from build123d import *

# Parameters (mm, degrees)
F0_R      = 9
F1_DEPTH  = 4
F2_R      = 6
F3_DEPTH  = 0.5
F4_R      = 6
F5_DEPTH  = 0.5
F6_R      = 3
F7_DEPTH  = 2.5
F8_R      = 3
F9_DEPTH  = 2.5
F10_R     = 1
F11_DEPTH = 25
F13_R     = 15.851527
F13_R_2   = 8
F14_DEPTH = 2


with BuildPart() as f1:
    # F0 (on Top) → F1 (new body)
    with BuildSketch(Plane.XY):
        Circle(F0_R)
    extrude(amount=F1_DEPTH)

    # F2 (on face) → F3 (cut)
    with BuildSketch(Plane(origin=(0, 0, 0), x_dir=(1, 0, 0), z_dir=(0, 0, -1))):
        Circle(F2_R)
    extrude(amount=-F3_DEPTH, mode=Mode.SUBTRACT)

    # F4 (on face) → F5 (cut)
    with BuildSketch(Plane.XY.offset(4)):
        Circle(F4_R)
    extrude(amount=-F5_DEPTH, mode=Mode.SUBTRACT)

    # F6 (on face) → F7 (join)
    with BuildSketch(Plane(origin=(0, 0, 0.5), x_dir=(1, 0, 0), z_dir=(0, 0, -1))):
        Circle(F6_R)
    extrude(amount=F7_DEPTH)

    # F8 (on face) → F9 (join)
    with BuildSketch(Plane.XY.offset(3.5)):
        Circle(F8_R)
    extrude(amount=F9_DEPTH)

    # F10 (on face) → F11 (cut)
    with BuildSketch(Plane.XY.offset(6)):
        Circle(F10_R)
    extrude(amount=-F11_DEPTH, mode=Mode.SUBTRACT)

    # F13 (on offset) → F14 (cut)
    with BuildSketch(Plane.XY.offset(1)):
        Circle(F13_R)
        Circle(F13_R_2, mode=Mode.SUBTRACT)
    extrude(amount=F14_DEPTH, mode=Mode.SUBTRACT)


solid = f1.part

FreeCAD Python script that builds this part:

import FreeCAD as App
import Part
import Sketcher
Q = App.Units.Quantity

doc = App.newDocument("Part")
body = doc.addObject("PartDesign::Body", "Body")

# Sketch on XY plane
sketch1 = doc.addObject("Sketcher::SketchObject", "Sketch")
body.addObject(sketch1)
sketch1.AttachmentSupport = (doc.XY_Plane, [""])
sketch1.MapMode = "FlatFace"
sketch1.addGeometry(Part.Circle(App.Vector(0, 0, 0), App.Vector(0, 0, 1), 9), False)
sketch1.addConstraint(Sketcher.Constraint("Coincident", 0, 3, -1, 1))
sketch1.addConstraint(Sketcher.Constraint("Diameter", 0, Q("18 mm")))
pad1 = doc.addObject("PartDesign::Pad", "Pad")
body.addObject(pad1)
pad1.Profile = sketch1
pad1.Length = 4

# Sketch on XY plane
sketch2 = doc.addObject("Sketcher::SketchObject", "Sketch001")
body.addObject(sketch2)
sketch2.AttachmentSupport = (doc.XY_Plane, [""])
sketch2.MapMode = "FlatFace"
sketch2.addGeometry(Part.Circle(App.Vector(0, 0, 0), App.Vector(0, 0, 1), 6), False)
sketch2.addConstraint(Sketcher.Constraint("Coincident", 0, 3, -1, 1))
sketch2.addConstraint(Sketcher.Constraint("Diameter", 0, Q("12 mm")))
pocket1 = doc.addObject("PartDesign::Pocket", "Pocket")
body.addObject(pocket1)
pocket1.Profile = sketch2
pocket1.Length = 0.5
pocket1.Reversed = True

# Sketch on XY plane
sketch3 = doc.addObject("Sketcher::SketchObject", "Sketch002")
body.addObject(sketch3)
sketch3.AttachmentSupport = (doc.XY_Plane, [""])
sketch3.MapMode = "FlatFace"
sketch3.AttachmentOffset = App.Placement(App.Vector(0, 0, 4), App.Rotation())
sketch3.addGeometry(Part.Circle(App.Vector(0, 0, 0), App.Vector(0, 0, 1), 6), False)
sketch3.addConstraint(Sketcher.Constraint("Coincident", 0, 3, -1, 1))
sketch3.addConstraint(Sketcher.Constraint("Diameter", 0, Q("12 mm")))
pocket2 = doc.addObject("PartDesign::Pocket", "Pocket001")
body.addObject(pocket2)
pocket2.Profile = sketch3
pocket2.Length = 0.5

# Sketch on XY plane
sketch4 = doc.addObject("Sketcher::SketchObject", "Sketch003")
body.addObject(sketch4)
sketch4.AttachmentSupport = (doc.XY_Plane, [""])
sketch4.MapMode = "FlatFace"
sketch4.AttachmentOffset = App.Placement(App.Vector(0, 0, 0.5), App.Rotation())
sketch4.addGeometry(Part.Circle(App.Vector(0, 0, 0), App.Vector(0, 0, 1), 3), False)
sketch4.addConstraint(Sketcher.Constraint("Coincident", 0, 3, -1, 1))
sketch4.addConstraint(Sketcher.Constraint("Diameter", 0, Q("6 mm")))
pad2 = doc.addObject("PartDesign::Pad", "Pad001")
body.addObject(pad2)
pad2.Profile = sketch4
pad2.Length = 2.5
pad2.Reversed = True

# Sketch on XY plane
sketch5 = doc.addObject("Sketcher::SketchObject", "Sketch004")
body.addObject(sketch5)
sketch5.AttachmentSupport = (doc.XY_Plane, [""])
sketch5.MapMode = "FlatFace"
sketch5.AttachmentOffset = App.Placement(App.Vector(0, 0, 3.5), App.Rotation())
sketch5.addGeometry(Part.Circle(App.Vector(0, 0, 0), App.Vector(0, 0, 1), 3), False)
sketch5.addConstraint(Sketcher.Constraint("Coincident", 0, 3, -1, 1))
sketch5.addConstraint(Sketcher.Constraint("Diameter", 0, Q("6 mm")))
pad3 = doc.addObject("PartDesign::Pad", "Pad002")
body.addObject(pad3)
pad3.Profile = sketch5
pad3.Length = 2.5

# Sketch on XY plane
sketch6 = doc.addObject("Sketcher::SketchObject", "Sketch005")
body.addObject(sketch6)
sketch6.AttachmentSupport = (doc.XY_Plane, [""])
sketch6.MapMode = "FlatFace"
sketch6.AttachmentOffset = App.Placement(App.Vector(0, 0, 6), App.Rotation())
sketch6.addGeometry(Part.Circle(App.Vector(0, 0, 0), App.Vector(0, 0, 1), 1), False)
sketch6.addConstraint(Sketcher.Constraint("Coincident", 0, 3, -1, 1))
sketch6.addConstraint(Sketcher.Constraint("Diameter", 0, Q("2 mm")))
pocket3 = doc.addObject("PartDesign::Pocket", "Pocket002")
body.addObject(pocket3)
pocket3.Profile = sketch6
pocket3.Length = 25

# Sketch on XY plane
sketch7 = doc.addObject("Sketcher::SketchObject", "Sketch006")
body.addObject(sketch7)
sketch7.AttachmentSupport = (doc.XY_Plane, [""])
sketch7.MapMode = "FlatFace"
sketch7.AttachmentOffset = App.Placement(App.Vector(0, 0, 1), App.Rotation())
sketch7.addGeometry(Part.Circle(App.Vector(0, 0, 0), App.Vector(0, 0, 1), 15.851527), False)
sketch7.addGeometry(Part.Circle(App.Vector(0, 0, 0), App.Vector(0, 0, 1), 8), False)
sketch7.addConstraint(Sketcher.Constraint("Coincident", 0, 3, -1, 1))
sketch7.addConstraint(Sketcher.Constraint("Coincident", 1, 3, -1, 1))
sketch7.addConstraint(Sketcher.Constraint("Diameter", 1, Q("16 mm")))
sketch7.addConstraint(Sketcher.Constraint("Diameter", 0, Q("31.703054 mm")))
pocket4 = doc.addObject("PartDesign::Pocket", "Pocket003")
body.addObject(pocket4)
pocket4.Profile = sketch7
pocket4.Length = 2
pocket4.Reversed = True

doc.recompute()
